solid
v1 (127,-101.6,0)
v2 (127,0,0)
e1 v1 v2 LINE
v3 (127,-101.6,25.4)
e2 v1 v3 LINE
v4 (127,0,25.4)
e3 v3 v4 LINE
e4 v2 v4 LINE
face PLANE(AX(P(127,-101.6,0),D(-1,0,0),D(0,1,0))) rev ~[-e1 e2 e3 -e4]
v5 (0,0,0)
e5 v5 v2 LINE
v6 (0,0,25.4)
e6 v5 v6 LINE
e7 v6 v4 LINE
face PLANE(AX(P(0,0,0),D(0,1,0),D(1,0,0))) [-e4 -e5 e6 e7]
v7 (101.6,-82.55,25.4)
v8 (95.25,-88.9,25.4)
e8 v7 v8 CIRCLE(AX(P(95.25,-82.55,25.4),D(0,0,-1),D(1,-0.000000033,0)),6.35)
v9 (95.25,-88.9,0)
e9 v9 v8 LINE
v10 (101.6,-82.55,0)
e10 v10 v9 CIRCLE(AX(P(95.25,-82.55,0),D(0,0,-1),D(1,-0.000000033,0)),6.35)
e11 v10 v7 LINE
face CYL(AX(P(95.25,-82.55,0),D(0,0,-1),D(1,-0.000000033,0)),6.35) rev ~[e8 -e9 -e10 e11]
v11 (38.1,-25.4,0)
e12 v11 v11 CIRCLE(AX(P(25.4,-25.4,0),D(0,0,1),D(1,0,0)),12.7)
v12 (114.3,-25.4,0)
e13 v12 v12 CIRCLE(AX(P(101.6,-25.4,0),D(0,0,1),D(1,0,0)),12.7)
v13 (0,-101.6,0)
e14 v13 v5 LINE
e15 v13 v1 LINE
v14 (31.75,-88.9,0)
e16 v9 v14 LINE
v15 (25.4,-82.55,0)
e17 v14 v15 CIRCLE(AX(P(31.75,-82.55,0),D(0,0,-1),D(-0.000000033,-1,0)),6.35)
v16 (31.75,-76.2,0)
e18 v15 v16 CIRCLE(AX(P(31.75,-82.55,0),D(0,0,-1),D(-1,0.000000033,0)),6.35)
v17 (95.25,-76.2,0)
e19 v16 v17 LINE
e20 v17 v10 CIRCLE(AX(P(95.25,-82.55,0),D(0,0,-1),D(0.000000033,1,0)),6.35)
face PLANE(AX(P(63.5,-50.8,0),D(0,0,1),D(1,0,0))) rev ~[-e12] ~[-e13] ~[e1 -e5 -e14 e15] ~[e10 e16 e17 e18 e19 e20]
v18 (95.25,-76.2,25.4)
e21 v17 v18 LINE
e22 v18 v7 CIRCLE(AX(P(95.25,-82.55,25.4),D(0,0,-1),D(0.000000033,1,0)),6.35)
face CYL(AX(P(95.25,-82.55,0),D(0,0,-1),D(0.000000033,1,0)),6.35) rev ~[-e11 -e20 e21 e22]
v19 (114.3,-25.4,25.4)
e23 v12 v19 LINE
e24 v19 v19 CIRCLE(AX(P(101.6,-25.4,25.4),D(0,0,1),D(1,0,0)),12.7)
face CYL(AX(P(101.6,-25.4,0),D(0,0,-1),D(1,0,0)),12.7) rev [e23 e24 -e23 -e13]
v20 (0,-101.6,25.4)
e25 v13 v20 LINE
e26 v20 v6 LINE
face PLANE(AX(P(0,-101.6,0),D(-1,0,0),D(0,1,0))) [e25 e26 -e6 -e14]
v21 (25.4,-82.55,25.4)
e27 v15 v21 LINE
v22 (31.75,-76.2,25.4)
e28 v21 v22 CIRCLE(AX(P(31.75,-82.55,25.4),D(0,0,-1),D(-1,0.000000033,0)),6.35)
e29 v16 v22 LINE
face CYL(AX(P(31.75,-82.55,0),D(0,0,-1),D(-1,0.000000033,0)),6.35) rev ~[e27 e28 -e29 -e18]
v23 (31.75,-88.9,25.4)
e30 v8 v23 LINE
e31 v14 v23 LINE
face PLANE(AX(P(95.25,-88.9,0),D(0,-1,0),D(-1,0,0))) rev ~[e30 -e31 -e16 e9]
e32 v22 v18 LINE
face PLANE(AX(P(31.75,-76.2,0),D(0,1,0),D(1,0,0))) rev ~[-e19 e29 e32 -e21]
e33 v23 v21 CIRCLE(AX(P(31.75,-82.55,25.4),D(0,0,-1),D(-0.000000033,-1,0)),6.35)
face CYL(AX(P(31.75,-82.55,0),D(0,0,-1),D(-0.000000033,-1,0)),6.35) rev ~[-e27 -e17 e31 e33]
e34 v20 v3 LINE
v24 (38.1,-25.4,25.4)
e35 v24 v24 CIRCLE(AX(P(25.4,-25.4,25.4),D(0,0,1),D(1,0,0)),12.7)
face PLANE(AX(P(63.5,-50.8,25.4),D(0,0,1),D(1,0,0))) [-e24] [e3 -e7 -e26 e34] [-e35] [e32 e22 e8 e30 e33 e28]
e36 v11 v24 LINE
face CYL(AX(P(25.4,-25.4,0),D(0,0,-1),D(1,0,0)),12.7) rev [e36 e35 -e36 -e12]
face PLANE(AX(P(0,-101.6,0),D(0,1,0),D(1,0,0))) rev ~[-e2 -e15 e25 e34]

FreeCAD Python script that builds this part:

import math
import FreeCAD as App
import Part
import Sketcher
Q = App.Units.Quantity


def add_polygon(sketch, points):
    """Adds a closed chain of lines whose ends are joined by coincident constraints."""
    first, n = sketch.GeometryCount, len(points)
    for a, b in zip(points, points[1:] + points[:1]):
        sketch.addGeometry(Part.LineSegment(App.Vector(*a, 0), App.Vector(*b, 0)), False)
    for i in range(n):
        sketch.addConstraint(Sketcher.Constraint("Coincident", first + i, 2, first + (i + 1) % n, 1))

doc = App.newDocument("Part")
body = doc.addObject("PartDesign::Body", "Body")

# Sketch on XY plane
sketch1 = body.newObject("Sketcher::SketchObject", "Sketch")
sketch1.AttachmentSupport = (doc.getObject("XY_Plane"), [""])
sketch1.MapMode = "FlatFace"
add_polygon(sketch1, [(0, 0), (0, -102), (127, -102), (127, 0)])  # lines 0-3
sketch1.addGeometry(Part.ArcOfCircle(Part.Circle(App.Vector(32, -83, 0), App.Vector(0, 0, 1), 6), math.radians(-180), math.radians(-90)), False)  # 4
sketch1.addGeometry(Part.ArcOfCircle(Part.Circle(App.Vector(32, -83, 0), App.Vector(0, 0, 1), 6), math.radians(90), math.radians(180)), False)  # 5
sketch1.addGeometry(Part.LineSegment(App.Vector(32, -76, 0), App.Vector(95, -76, 0)), False)  # 6
sketch1.addGeometry(Part.ArcOfCircle(Part.Circle(App.Vector(95, -83, 0), App.Vector(0, 0, 1), 6), math.radians(0), math.radians(90)), False)  # 7
sketch1.addGeometry(Part.ArcOfCircle(Part.Circle(App.Vector(95, -83, 0), App.Vector(0, 0, 1), 6), math.radians(-90), math.radians(0)), False)  # 8
sketch1.addGeometry(Part.LineSegment(App.Vector(95, -89, 0), App.Vector(32, -89, 0)), False)  # 9
sketch1.addGeometry(Part.Circle(App.Vector(25, -25, 0), App.Vector(0, 0, 1), 13), False)  # 10
sketch1.addGeometry(Part.Circle(App.Vector(102, -25, 0), App.Vector(0, 0, 1), 13), False)  # 11
sketch1.addConstraint(Sketcher.Constraint("Tangent", 4, 1, 5, 2))
sketch1.addConstraint(Sketcher.Constraint("Tangent", 5, 1, 6, 1))
sketch1.addConstraint(Sketcher.Constraint("Tangent", 6, 2, 7, 2))
sketch1.addConstraint(Sketcher.Constraint("Tangent", 7, 1, 8, 2))
sketch1.addConstraint(Sketcher.Constraint("Tangent", 8, 1, 9, 1))
sketch1.addConstraint(Sketcher.Constraint("Tangent", 9, 2, 4, 2))
sketch1.addConstraint(Sketcher.Constraint("Vertical", 0))
sketch1.addConstraint(Sketcher.Constraint("Horizontal", 1))
sketch1.addConstraint(Sketcher.Constraint("Vertical", 2))
sketch1.addConstraint(Sketcher.Constraint("Horizontal", 3))
sketch1.addConstraint(Sketcher.Constraint("Horizontal", 6))
sketch1.addConstraint(Sketcher.Constraint("Horizontal", 9))
sketch1.addConstraint(Sketcher.Constraint("Coincident", 3, 2, -1, 1))
sketch1.addConstraint(Sketcher.Constraint("Equal", 4, 5))
sketch1.addConstraint(Sketcher.Constraint("Equal", 5, 7))
sketch1.addConstraint(Sketcher.Constraint("Equal", 10, 11))
sketch1.addConstraint(Sketcher.Constraint("Horizontal", 10, 3, 11, 3))
sketch1.addConstraint(Sketcher.Constraint("Horizontal", 8, 3, 4, 1))
sketch1.addConstraint(Sketcher.Constraint("Horizontal", 4, 1, 7, 1))
sketch1.addConstraint(Sketcher.Constraint("Vertical", 10, 3, 4, 1))
sketch1.addConstraint(Sketcher.Constraint("Vertical", 11, 3, 7, 1))
sketch1.addConstraint(Sketcher.Constraint("Diameter", 10, Q("1 in")))
sketch1.addConstraint(Sketcher.Constraint("DistanceX", 1, 1, 1, 2, Q("5 in")))
sketch1.addConstraint(Sketcher.Constraint("DistanceY", 0, 2, 0, 1, Q("4 in")))
sketch1.addConstraint(Sketcher.Constraint("Radius", 4, Q("0.25 in")))
sketch1.addConstraint(Sketcher.Constraint("DistanceX", 6, 1, 6, 2, Q("2.5 in")))
sketch1.addConstraint(Sketcher.Constraint("DistanceX", -1, 1, 10, 3, Q("1 in")))
sketch1.addConstraint(Sketcher.Constraint("DistanceY", 10, 3, -1, 1, Q("1 in")))
sketch1.addConstraint(Sketcher.Constraint("DistanceY", 5, 1, -1, 1, Q("3 in")))
pad1 = body.newObject("PartDesign::Pad", "Pad")
pad1.Profile = sketch1
pad1.Length = Q("1 in")

doc.recompute()
